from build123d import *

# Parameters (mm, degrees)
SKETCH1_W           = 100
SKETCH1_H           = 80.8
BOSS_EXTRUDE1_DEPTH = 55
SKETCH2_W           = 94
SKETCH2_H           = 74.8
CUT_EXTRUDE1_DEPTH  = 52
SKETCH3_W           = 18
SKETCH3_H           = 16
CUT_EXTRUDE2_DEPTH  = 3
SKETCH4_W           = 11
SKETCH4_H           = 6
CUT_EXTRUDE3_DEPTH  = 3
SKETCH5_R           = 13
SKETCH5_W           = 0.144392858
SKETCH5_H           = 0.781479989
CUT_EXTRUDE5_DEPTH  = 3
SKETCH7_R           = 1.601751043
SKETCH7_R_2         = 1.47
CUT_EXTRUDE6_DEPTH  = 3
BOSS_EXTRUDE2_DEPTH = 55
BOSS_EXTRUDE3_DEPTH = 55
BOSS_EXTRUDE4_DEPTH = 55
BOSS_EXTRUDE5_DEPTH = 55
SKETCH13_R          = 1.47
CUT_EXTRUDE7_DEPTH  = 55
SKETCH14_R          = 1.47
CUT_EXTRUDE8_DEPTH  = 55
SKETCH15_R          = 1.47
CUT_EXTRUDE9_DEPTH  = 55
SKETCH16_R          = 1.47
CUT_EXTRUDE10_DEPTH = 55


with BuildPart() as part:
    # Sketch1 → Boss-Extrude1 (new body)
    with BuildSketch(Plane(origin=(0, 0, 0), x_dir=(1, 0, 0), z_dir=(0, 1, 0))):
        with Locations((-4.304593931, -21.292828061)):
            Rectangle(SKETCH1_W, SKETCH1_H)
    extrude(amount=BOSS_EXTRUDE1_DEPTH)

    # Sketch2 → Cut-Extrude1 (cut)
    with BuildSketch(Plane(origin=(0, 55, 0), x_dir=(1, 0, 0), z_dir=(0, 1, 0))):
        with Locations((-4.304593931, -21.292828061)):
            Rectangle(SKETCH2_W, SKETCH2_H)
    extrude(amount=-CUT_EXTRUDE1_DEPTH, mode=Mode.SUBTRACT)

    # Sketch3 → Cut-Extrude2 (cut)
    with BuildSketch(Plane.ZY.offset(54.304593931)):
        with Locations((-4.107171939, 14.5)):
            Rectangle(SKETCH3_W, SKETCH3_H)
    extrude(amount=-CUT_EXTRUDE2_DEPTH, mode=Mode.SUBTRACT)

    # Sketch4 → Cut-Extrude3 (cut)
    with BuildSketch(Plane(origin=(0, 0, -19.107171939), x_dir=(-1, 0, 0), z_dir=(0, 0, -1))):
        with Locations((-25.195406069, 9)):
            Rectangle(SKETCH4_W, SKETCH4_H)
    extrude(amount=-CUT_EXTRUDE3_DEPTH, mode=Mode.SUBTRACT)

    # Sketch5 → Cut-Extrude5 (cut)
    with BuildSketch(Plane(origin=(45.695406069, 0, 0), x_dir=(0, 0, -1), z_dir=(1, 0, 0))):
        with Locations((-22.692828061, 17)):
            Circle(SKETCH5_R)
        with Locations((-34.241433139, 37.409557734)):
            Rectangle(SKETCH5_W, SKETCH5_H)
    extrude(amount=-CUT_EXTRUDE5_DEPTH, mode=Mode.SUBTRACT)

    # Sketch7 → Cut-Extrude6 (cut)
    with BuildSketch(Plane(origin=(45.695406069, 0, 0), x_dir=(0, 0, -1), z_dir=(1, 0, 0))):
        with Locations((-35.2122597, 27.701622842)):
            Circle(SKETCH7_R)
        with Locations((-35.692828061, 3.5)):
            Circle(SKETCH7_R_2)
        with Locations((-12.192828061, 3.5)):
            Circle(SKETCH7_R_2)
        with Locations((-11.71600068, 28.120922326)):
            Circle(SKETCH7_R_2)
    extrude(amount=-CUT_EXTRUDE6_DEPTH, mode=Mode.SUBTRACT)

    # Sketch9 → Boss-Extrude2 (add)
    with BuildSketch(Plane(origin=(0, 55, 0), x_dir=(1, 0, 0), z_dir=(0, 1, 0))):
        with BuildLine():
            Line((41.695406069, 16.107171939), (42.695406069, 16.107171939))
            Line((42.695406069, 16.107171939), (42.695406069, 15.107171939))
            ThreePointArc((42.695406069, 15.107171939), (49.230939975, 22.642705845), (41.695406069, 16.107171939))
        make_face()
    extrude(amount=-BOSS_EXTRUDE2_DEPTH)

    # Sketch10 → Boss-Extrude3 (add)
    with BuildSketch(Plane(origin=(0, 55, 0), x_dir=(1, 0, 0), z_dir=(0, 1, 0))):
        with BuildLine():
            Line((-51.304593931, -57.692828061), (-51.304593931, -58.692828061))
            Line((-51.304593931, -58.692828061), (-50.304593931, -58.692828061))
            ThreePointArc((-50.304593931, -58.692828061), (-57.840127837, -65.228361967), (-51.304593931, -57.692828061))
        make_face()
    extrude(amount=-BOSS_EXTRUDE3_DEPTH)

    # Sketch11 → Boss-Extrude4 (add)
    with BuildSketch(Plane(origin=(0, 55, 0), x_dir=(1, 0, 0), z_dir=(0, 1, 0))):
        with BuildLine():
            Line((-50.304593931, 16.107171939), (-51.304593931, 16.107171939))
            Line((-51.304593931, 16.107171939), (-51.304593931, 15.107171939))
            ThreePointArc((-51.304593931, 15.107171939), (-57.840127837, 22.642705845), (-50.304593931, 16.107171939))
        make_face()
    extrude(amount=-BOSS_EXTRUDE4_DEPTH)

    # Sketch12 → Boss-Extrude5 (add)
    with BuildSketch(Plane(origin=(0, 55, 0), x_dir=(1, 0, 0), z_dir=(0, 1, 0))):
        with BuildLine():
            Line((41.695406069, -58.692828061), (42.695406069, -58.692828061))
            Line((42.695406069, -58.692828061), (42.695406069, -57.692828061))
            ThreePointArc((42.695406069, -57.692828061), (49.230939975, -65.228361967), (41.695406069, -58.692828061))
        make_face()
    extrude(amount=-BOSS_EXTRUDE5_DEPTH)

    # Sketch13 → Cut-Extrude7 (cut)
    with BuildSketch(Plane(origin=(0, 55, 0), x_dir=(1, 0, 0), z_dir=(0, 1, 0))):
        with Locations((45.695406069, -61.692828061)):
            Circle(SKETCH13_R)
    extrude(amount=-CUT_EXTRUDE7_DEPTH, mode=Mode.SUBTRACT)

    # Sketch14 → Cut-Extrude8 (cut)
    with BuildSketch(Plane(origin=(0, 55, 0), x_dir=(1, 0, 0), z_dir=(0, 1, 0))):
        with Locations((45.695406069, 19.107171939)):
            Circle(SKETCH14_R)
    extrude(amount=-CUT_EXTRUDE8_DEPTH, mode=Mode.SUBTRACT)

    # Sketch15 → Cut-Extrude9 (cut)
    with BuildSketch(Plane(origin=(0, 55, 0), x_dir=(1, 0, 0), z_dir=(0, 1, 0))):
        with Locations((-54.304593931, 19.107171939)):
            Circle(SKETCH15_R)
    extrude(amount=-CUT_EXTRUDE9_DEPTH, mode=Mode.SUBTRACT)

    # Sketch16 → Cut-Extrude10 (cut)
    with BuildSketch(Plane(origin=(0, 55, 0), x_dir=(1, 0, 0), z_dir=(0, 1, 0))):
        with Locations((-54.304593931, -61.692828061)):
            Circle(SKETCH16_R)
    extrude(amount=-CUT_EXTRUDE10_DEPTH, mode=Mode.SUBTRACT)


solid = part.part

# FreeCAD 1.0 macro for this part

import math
import FreeCAD as App
import Part
import Sketcher
Q = App.Units.Quantity


def add_polygon(sketch, points):
    """Adds a closed chain of lines whose ends are joined by coincident constraints."""
    first, n = sketch.GeometryCount, len(points)
    for a, b in zip(points, points[1:] + points[:1]):
        sketch.addGeometry(Part.LineSegment(App.Vector(*a, 0), App.Vector(*b, 0)), False)
    for i in range(n):
        sketch.addConstraint(Sketcher.Constraint("Coincident", first + i, 2, first + (i + 1) % n, 1))

doc = App.newDocument("Part")
body = doc.addObject("PartDesign::Body", "Body")

# Sketch on XZ plane
sketch1 = body.newObject("Sketcher::SketchObject", "Sketch")
sketch1.AttachmentSupport = (doc.getObject("XZ_Plane"), [""])
sketch1.MapMode = "FlatFace"
add_polygon(sketch1, [(-54.304594, -19.107172), (-54.304594, 61.692828), (45.695406, 61.692828), (45.695406, -19.107172)])  # lines 0-3
sketch1.addConstraint(Sketcher.Constraint("Vertical", 0))
sketch1.addConstraint(Sketcher.Constraint("Horizontal", 1))
sketch1.addConstraint(Sketcher.Constraint("Vertical", 2))
sketch1.addConstraint(Sketcher.Constraint("Horizontal", 3))
sketch1.addConstraint(Sketcher.Constraint("DistanceX", 1, 1, 1, 2, Q("100 mm")))
sketch1.addConstraint(Sketcher.Constraint("DistanceY", 0, 1, 0, 2, Q("80.8 mm")))
sketch1.addConstraint(Sketcher.Constraint("DistanceY", -1, 1, 0, 2, Q("61.692828 mm")))
sketch1.addConstraint(Sketcher.Constraint("DistanceX", 0, 2, -1, 1, Q("54.304594 mm")))
pad1 = body.newObject("PartDesign::Pad", "Pad")
pad1.Profile = sketch1
pad1.Length = 55
pad1.Reversed = True

# Sketch on XZ plane
sketch2 = body.newObject("Sketcher::SketchObject", "Sketch001")
sketch2.AttachmentSupport = (doc.getObject("XZ_Plane"), [""])
sketch2.MapMode = "FlatFace"
sketch2.AttachmentOffset = App.Placement(App.Vector(0, 0, -55), App.Rotation())
add_polygon(sketch2, [(-51.304594, -16.107172), (-51.304594, 58.692828), (42.695406, 58.692828), (42.695406, -16.107172)])  # lines 0-3
sketch2.addConstraint(Sketcher.Constraint("Vertical", 0))
sketch2.addConstraint(Sketcher.Constraint("Horizontal", 1))
sketch2.addConstraint(Sketcher.Constraint("Vertical", 2))
sketch2.addConstraint(Sketcher.Constraint("Horizontal", 3))
sketch2.addConstraint(Sketcher.Constraint("DistanceX", 1, 1, 1, 2, Q("94 mm")))
sketch2.addConstraint(Sketcher.Constraint("DistanceY", 0, 1, 0, 2, Q("74.8 mm")))
sketch2.addConstraint(Sketcher.Constraint("DistanceY", -1, 1, 0, 2, Q("58.692828 mm")))
sketch2.addConstraint(Sketcher.Constraint("DistanceX", 0, 2, -1, 1, Q("51.304594 mm")))
pocket1 = body.newObject("PartDesign::Pocket", "Pocket")
pocket1.Profile = sketch2
pocket1.Length = 52
pocket1.Reversed = True

# Sketch on YZ plane
sketch3 = body.newObject("Sketcher::SketchObject", "Sketch002")
sketch3.AttachmentSupport = (doc.getObject("YZ_Plane"), [""])
sketch3.MapMode = "FlatFace"
sketch3.AttachmentOffset = App.Placement(App.Vector(0, 0, -54.304594), App.Rotation())
add_polygon(sketch3, [(22.5, -13.107172), (6.5, -13.107172), (6.5, 4.892828), (22.5, 4.892828)])  # lines 0-3
sketch3.addConstraint(Sketcher.Constraint("Horizontal", 0))
sketch3.addConstraint(Sketcher.Constraint("Vertical", 1))
sketch3.addConstraint(Sketcher.Constraint("Horizontal", 2))
sketch3.addConstraint(Sketcher.Constraint("Vertical", 3))
sketch3.addConstraint(Sketcher.Constraint("DistanceX", 0, 2, 0, 1, Q("16 mm")))
sketch3.addConstraint(Sketcher.Constraint("DistanceY", 1, 1, 1, 2, Q("18 mm")))
sketch3.addConstraint(Sketcher.Constraint("DistanceX", -1, 1, 0, 2, Q("6.5 mm")))
sketch3.addConstraint(Sketcher.Constraint("DistanceY", 0, 2, -1, 1, Q("13.107172 mm")))
pocket2 = body.newObject("PartDesign::Pocket", "Pocket001")
pocket2.Profile = sketch3
pocket2.Length = 3
pocket2.Reversed = True

# Sketch on XY plane
sketch4 = body.newObject("Sketcher::SketchObject", "Sketch003")
sketch4.AttachmentSupport = (doc.getObject("XY_Plane"), [""])
sketch4.MapMode = "FlatFace"
sketch4.AttachmentOffset = App.Placement(App.Vector(0, 0, -19.107172), App.Rotation())
add_polygon(sketch4, [(30.695406, 12), (30.695406, 6), (19.695406, 6), (19.695406, 12)])  # lines 0-3
sketch4.addConstraint(Sketcher.Constraint("Vertical", 0))
sketch4.addConstraint(Sketcher.Constraint("Horizontal", 1))
sketch4.addConstraint(Sketcher.Constraint("Vertical", 2))
sketch4.addConstraint(Sketcher.Constraint("Horizontal", 3))
sketch4.addConstraint(Sketcher.Constraint("DistanceX", 1, 2, 1, 1, Q("11 mm")))
sketch4.addConstraint(Sketcher.Constraint("DistanceY", 0, 2, 0, 1, Q("6 mm")))
sketch4.addConstraint(Sketcher.Constraint("DistanceY", -1, 1, 0, 2, Q("6 mm")))
sketch4.addConstraint(Sketcher.Constraint("DistanceX", -1, 1, 0, 2, Q("30.695406 mm")))
pocket3 = body.newObject("PartDesign::Pocket", "Pocket002")
pocket3.Profile = sketch4
pocket3.Length = 3
pocket3.Reversed = True

# Sketch on YZ plane
sketch5 = body.newObject("Sketcher::SketchObject", "Sketch004")
sketch5.AttachmentSupport = (doc.getObject("YZ_Plane"), [""])
sketch5.MapMode = "FlatFace"
sketch5.AttachmentOffset = App.Placement(App.Vector(0, 0, 45.695406), App.Rotation())
sketch5.addGeometry(Part.Circle(App.Vector(17, 22.692828, 0), App.Vector(0, 0, 1), 13), False)  # 0
add_polygon(sketch5, [(37.800298, 34.31363), (37.018818, 34.31363), (37.018818, 34.169237), (37.800298, 34.169237)])  # lines 1-4
sketch5.addConstraint(Sketcher.Constraint("Horizontal", 1))
sketch5.addConstraint(Sketcher.Constraint("Vertical", 2))
sketch5.addConstraint(Sketcher.Constraint("Horizontal", 3))
sketch5.addConstraint(Sketcher.Constraint("Vertical", 4))
sketch5.addConstraint(Sketcher.Constraint("Diameter", 0, Q("26 mm")))
sketch5.addConstraint(Sketcher.Constraint("DistanceX", -1, 1, 0, 3, Q("17 mm")))
sketch5.addConstraint(Sketcher.Constraint("DistanceX", 1, 2, 1, 1, Q("0.78148 mm")))
sketch5.addConstraint(Sketcher.Constraint("DistanceY", 0, 3, 1, 2, Q("11.620802 mm")))
sketch5.addConstraint(Sketcher.Constraint("DistanceY", 2, 2, 2, 1, Q("0.144393 mm")))
sketch5.addConstraint(Sketcher.Constraint("DistanceY", -1, 1, 0, 3, Q("22.692828 mm")))
sketch5.addConstraint(Sketcher.Constraint("DistanceX", -1, 1, 1, 2, Q("37.018818 mm")))
pocket4 = body.newObject("PartDesign::Pocket", "Pocket003")
pocket4.Profile = sketch5
pocket4.Length = 3

# Sketch on YZ plane
sketch6 = body.newObject("Sketcher::SketchObject", "Sketch005")
sketch6.AttachmentSupport = (doc.getObject("YZ_Plane"), [""])
sketch6.MapMode = "FlatFace"
sketch6.AttachmentOffset = App.Placement(App.Vector(0, 0, 45.695406), App.Rotation())
sketch6.addGeometry(Part.Circle(App.Vector(27.701623, 35.21226, 0), App.Vector(0, 0, 1), 1.601751), False)
sketch6.addGeometry(Part.Circle(App.Vector(3.5, 35.692828, 0), App.Vector(0, 0, 1), 1.47), False)
sketch6.addGeometry(Part.Circle(App.Vector(3.5, 12.192828, 0), App.Vector(0, 0, 1), 1.47), False)
sketch6.addGeometry(Part.Circle(App.Vector(28.120922, 11.716001, 0), App.Vector(0, 0, 1), 1.47), False)
sketch6.addConstraint(Sketcher.Constraint("Equal", 1, 2))
sketch6.addConstraint(Sketcher.Constraint("Equal", 2, 3))
sketch6.addConstraint(Sketcher.Constraint("Vertical", 1, 3, 2, 3))
sketch6.addConstraint(Sketcher.Constraint("Diameter", 1, Q("2.94 mm")))
sketch6.addConstraint(Sketcher.Constraint("DistanceX", -1, 1, 1, 3, Q("3.5 mm")))
sketch6.addConstraint(Sketcher.Constraint("DistanceY", 2, 3, 1, 3, Q("23.5 mm")))
sketch6.addConstraint(Sketcher.Constraint("Diameter", 0, Q("3.203502 mm")))
sketch6.addConstraint(Sketcher.Constraint("DistanceY", -1, 1, 3, 3, Q("11.716001 mm")))
sketch6.addConstraint(Sketcher.Constraint("DistanceX", 0, 3, 3, 3, Q("0.419299 mm")))
sketch6.addConstraint(Sketcher.Constraint("DistanceY", -1, 1, 0, 3, Q("35.21226 mm")))
sketch6.addConstraint(Sketcher.Constraint("DistanceY", -1, 1, 1, 3, Q("35.692828 mm")))
sketch6.addConstraint(Sketcher.Constraint("DistanceX", -1, 1, 0, 3, Q("27.701623 mm")))
pocket5 = body.newObject("PartDesign::Pocket", "Pocket004")
pocket5.Profile = sketch6
pocket5.Length = 3

# Sketch on XZ plane
sketch7 = body.newObject("Sketcher::SketchObject", "Sketch006")
sketch7.AttachmentSupport = (doc.getObject("XZ_Plane"), [""])
sketch7.MapMode = "FlatFace"
sketch7.AttachmentOffset = App.Placement(App.Vector(0, 0, -55), App.Rotation())
sketch7.addGeometry(Part.LineSegment(App.Vector(41.695406, -16.107172, 0), App.Vector(42.695406, -16.107172, 0)), False)
sketch7.addGeometry(Part.LineSegment(App.Vector(42.695406, -16.107172, 0), App.Vector(42.695406, -15.107172, 0)), False)
sketch7.addGeometry(Part.ArcOfCircle(Part.Circle(App.Vector(45.695406, -19.107172, 0), App.Vector(0, 0, 1), 5), math.radians(143.130102), math.radians(486.869898)), False)
sketch7.addConstraint(Sketcher.Constraint("Coincident", 0, 2, 1, 1))
sketch7.addConstraint(Sketcher.Constraint("Coincident", 1, 2, 2, 2))
sketch7.addConstraint(Sketcher.Constraint("Coincident", 2, 1, 0, 1))
sketch7.addConstraint(Sketcher.Constraint("Horizontal", 0))
sketch7.addConstraint(Sketcher.Constraint("Vertical", 1))
sketch7.addConstraint(Sketcher.Constraint("Equal", 0, 1))
sketch7.addConstraint(Sketcher.Constraint("Radius", 2, Q("5 mm")))
sketch7.addConstraint(Sketcher.Constraint("DistanceX", 0, 1, 0, 2, Q("1 mm")))
sketch7.addConstraint(Sketcher.Constraint("DistanceY", 2, 3, -1, 1, Q("19.107172 mm")))
sketch7.addConstraint(Sketcher.Constraint("DistanceX", -1, 1, 2, 3, Q("45.695406 mm")))
pad2 = body.newObject("PartDesign::Pad", "Pad001")
pad2.Profile = sketch7
pad2.Length = 55

# Sketch on XZ plane
sketch8 = body.newObject("Sketcher::SketchObject", "Sketch007")
sketch8.AttachmentSupport = (doc.getObject("XZ_Plane"), [""])
sketch8.MapMode = "FlatFace"
sketch8.AttachmentOffset = App.Placement(App.Vector(0, 0, -55), App.Rotation())
sketch8.addGeometry(Part.LineSegment(App.Vector(-51.304594, 58.692828, 0), App.Vector(-51.304594, 57.692828, 0)), False)
sketch8.addGeometry(Part.ArcOfCircle(Part.Circle(App.Vector(-54.304594, 61.692828, 0), App.Vector(0, 0, 1), 5), math.radians(-36.869898), math.radians(306.869898)), False)
sketch8.addGeometry(Part.LineSegment(App.Vector(-50.304594, 58.692828, 0), App.Vector(-51.304594, 58.692828, 0)), False)
sketch8.addConstraint(Sketcher.Constraint("Coincident", 0, 2, 1, 2))
sketch8.addConstraint(Sketcher.Constraint("Coincident", 1, 1, 2, 1))
sketch8.addConstraint(Sketcher.Constraint("Coincident", 2, 2, 0, 1))
sketch8.addConstraint(Sketcher.Constraint("Vertical", 0))
sketch8.addConstraint(Sketcher.Constraint("Horizontal", 2))
sketch8.addConstraint(Sketcher.Constraint("Equal", 2, 0))
sketch8.addConstraint(Sketcher.Constraint("Radius", 1, Q("5 mm")))
sketch8.addConstraint(Sketcher.Constraint("DistanceX", 2, 2, 2, 1, Q("1 mm")))
sketch8.addConstraint(Sketcher.Constraint("DistanceY", -1, 1, 1, 3, Q("61.692828 mm")))
sketch8.addConstraint(Sketcher.Constraint("DistanceX", 1, 3, -1, 1, Q("54.304594 mm")))
pad3 = body.newObject("PartDesign::Pad", "Pad002")
pad3.Profile = sketch8
pad3.Length = 55

# Sketch on XZ plane
sketch9 = body.newObject("Sketcher::SketchObject", "Sketch008")
sketch9.AttachmentSupport = (doc.getObject("XZ_Plane"), [""])
sketch9.MapMode = "FlatFace"
sketch9.AttachmentOffset = App.Placement(App.Vector(0, 0, -55), App.Rotation())
sketch9.addGeometry(Part.LineSegment(App.Vector(-51.304594, -16.107172, 0), App.Vector(-50.304594, -16.107172, 0)), False)
sketch9.addGeometry(Part.ArcOfCircle(Part.Circle(App.Vector(-54.304594, -19.107172, 0), App.Vector(0, 0, 1), 5), math.radians(53.130102), math.radians(396.869898)), False)
sketch9.addGeometry(Part.LineSegment(App.Vector(-51.304594, -15.107172, 0), App.Vector(-51.304594, -16.107172, 0)), False)
sketch9.addConstraint(Sketcher.Constraint("Coincident", 0, 2, 1, 2))
sketch9.addConstraint(Sketcher.Constraint("Coincident", 1, 1, 2, 1))
sketch9.addConstraint(Sketcher.Constraint("Coincident", 2, 2, 0, 1))
sketch9.addConstraint(Sketcher.Constraint("Horizontal", 0))
sketch9.addConstraint(Sketcher.Constraint("Vertical", 2))
sketch9.addConstraint(Sketcher.Constraint("Equal", 0, 2))
sketch9.addConstraint(Sketcher.Constraint("Radius", 1, Q("5 mm")))
sketch9.addConstraint(Sketcher.Constraint("DistanceX", 0, 1, 0, 2, Q("1 mm")))
sketch9.addConstraint(Sketcher.Constraint("DistanceY", 1, 3, -1, 1, Q("19.107172 mm")))
sketch9.addConstraint(Sketcher.Constraint("DistanceX", 1, 3, -1, 1, Q("54.304594 mm")))
pad4 = body.newObject("PartDesign::Pad", "Pad003")
pad4.Profile = sketch9
pad4.Length = 55

# Sketch on XZ plane
sketch10 = body.newObject("Sketcher::SketchObject", "Sketch009")
sketch10.AttachmentSupport = (doc.getObject("XZ_Plane"), [""])
sketch10.MapMode = "FlatFace"
sketch10.AttachmentOffset = App.Placement(App.Vector(0, 0, -55), App.Rotation())
sketch10.addGeometry(Part.LineSegment(App.Vector(42.695406, 58.692828, 0), App.Vector(41.695406, 58.692828, 0)), False)
sketch10.addGeometry(Part.ArcOfCircle(Part.Circle(App.Vector(45.695406, 61.692828, 0), App.Vector(0, 0, 1), 5), math.radians(-126.869898), math.radians(216.869898)), False)
sketch10.addGeometry(Part.LineSegment(App.Vector(42.695406, 57.692828, 0), App.Vector(42.695406, 58.692828, 0)), False)
sketch10.addConstraint(Sketcher.Constraint("Coincident", 0, 2, 1, 2))
sketch10.addConstraint(Sketcher.Constraint("Coincident", 1, 1, 2, 1))
sketch10.addConstraint(Sketcher.Constraint("Coincident", 2, 2, 0, 1))
sketch10.addConstraint(Sketcher.Constraint("Horizontal", 0))
sketch10.addConstraint(Sketcher.Constraint("Vertical", 2))
sketch10.addConstraint(Sketcher.Constraint("Equal", 0, 2))
sketch10.addConstraint(Sketcher.Constraint("Radius", 1, Q("5 mm")))
sketch10.addConstraint(Sketcher.Constraint("DistanceX", 0, 2, 0, 1, Q("1 mm")))
sketch10.addConstraint(Sketcher.Constraint("DistanceY", -1, 1, 1, 3, Q("61.692828 mm")))
sketch10.addConstraint(Sketcher.Constraint("DistanceX", -1, 1, 1, 3, Q("45.695406 mm")))
pad5 = body.newObject("PartDesign::Pad", "Pad004")
pad5.Profile = sketch10
pad5.Length = 55

# Sketch on XZ plane
sketch11 = body.newObject("Sketcher::SketchObject", "Sketch010")
sketch11.AttachmentSupport = (doc.getObject("XZ_Plane"), [""])
sketch11.MapMode = "FlatFace"
sketch11.AttachmentOffset = App.Placement(App.Vector(0, 0, -55), App.Rotation())
sketch11.addGeometry(Part.Circle(App.Vector(45.695406, 61.692828, 0), App.Vector(0, 0, 1), 1.47), False)
sketch11.addConstraint(Sketcher.Constraint("Diameter", 0, Q("2.94 mm")))
sketch11.addConstraint(Sketcher.Constraint("DistanceY", -1, 1, 0, 3, Q("61.692828 mm")))
sketch11.addConstraint(Sketcher.Constraint("DistanceX", -1, 1, 0, 3, Q("45.695406 mm")))
pocket6 = body.newObject("PartDesign::Pocket", "Pocket005")
pocket6.Profile = sketch11
pocket6.Length = 55
pocket6.Reversed = True

# Sketch on XZ plane
sketch12 = body.newObject("Sketcher::SketchObject", "Sketch011")
sketch12.AttachmentSupport = (doc.getObject("XZ_Plane"), [""])
sketch12.MapMode = "FlatFace"
sketch12.AttachmentOffset = App.Placement(App.Vector(0, 0, -55), App.Rotation())
sketch12.addGeometry(Part.Circle(App.Vector(45.695406, -19.107172, 0), App.Vector(0, 0, 1), 1.47), False)
sketch12.addConstraint(Sketcher.Constraint("Diameter", 0, Q("2.94 mm")))
sketch12.addConstraint(Sketcher.Constraint("DistanceY", 0, 3, -1, 1, Q("19.107172 mm")))
sketch12.addConstraint(Sketcher.Constraint("DistanceX", -1, 1, 0, 3, Q("45.695406 mm")))
pocket7 = body.newObject("PartDesign::Pocket", "Pocket006")
pocket7.Profile = sketch12
pocket7.Length = 55
pocket7.Reversed = True

# Sketch on XZ plane
sketch13 = body.newObject("Sketcher::SketchObject", "Sketch012")
sketch13.AttachmentSupport = (doc.getObject("XZ_Plane"), [""])
sketch13.MapMode = "FlatFace"
sketch13.AttachmentOffset = App.Placement(App.Vector(0, 0, -55), App.Rotation())
sketch13.addGeometry(Part.Circle(App.Vector(-54.304594, -19.107172, 0), App.Vector(0, 0, 1), 1.47), False)
sketch13.addConstraint(Sketcher.Constraint("Diameter", 0, Q("2.94 mm")))
sketch13.addConstraint(Sketcher.Constraint("DistanceY", 0, 3, -1, 1, Q("19.107172 mm")))
sketch13.addConstraint(Sketcher.Constraint("DistanceX", 0, 3, -1, 1, Q("54.304594 mm")))
pocket8 = body.newObject("PartDesign::Pocket", "Pocket007")
pocket8.Profile = sketch13
pocket8.Length = 55
pocket8.Reversed = True

# Sketch on XZ plane
sketch14 = body.newObject("Sketcher::SketchObject", "Sketch013")
sketch14.AttachmentSupport = (doc.getObject("XZ_Plane"), [""])
sketch14.MapMode = "FlatFace"
sketch14.AttachmentOffset = App.Placement(App.Vector(0, 0, -55), App.Rotation())
sketch14.addGeometry(Part.Circle(App.Vector(-54.304594, 61.692828, 0), App.Vector(0, 0, 1), 1.47), False)
sketch14.addConstraint(Sketcher.Constraint("Diameter", 0, Q("2.94 mm")))
sketch14.addConstraint(Sketcher.Constraint("DistanceY", -1, 1, 0, 3, Q("61.692828 mm")))
sketch14.addConstraint(Sketcher.Constraint("DistanceX", 0, 3, -1, 1, Q("54.304594 mm")))
pocket9 = body.newObject("PartDesign::Pocket", "Pocket008")
pocket9.Profile = sketch14
pocket9.Length = 55
pocket9.Reversed = True

doc.recompute()
